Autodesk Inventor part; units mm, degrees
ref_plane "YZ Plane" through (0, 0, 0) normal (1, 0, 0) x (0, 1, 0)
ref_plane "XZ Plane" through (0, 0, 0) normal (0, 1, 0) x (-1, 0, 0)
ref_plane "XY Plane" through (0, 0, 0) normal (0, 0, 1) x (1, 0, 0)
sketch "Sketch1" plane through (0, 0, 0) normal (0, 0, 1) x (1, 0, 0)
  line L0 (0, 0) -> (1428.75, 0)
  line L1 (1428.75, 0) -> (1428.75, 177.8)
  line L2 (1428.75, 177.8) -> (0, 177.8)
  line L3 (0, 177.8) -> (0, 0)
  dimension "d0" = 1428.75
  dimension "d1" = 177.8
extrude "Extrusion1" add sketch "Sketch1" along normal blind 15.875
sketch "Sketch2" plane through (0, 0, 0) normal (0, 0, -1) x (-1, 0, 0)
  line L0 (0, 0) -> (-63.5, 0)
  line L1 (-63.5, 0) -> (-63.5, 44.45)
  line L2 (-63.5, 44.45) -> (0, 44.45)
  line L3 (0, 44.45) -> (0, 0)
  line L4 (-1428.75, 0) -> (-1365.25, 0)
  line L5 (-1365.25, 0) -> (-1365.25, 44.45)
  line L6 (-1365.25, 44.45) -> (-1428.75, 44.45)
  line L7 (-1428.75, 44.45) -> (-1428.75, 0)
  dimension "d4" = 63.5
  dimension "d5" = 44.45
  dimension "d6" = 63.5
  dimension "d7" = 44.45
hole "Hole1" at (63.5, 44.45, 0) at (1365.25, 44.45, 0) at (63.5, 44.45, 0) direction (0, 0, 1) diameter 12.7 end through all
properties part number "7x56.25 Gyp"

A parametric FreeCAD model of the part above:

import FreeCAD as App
import Part
import Sketcher

V = App.Vector
Q = App.Units.Quantity

doc = App.newDocument("Part")
body = doc.addObject("PartDesign::Body", "Body")

# Sketch on XY plane
sketch1 = body.newObject("Sketcher::SketchObject", "Sketch")
sketch1.AttachmentSupport = (doc.getObject("XY_Plane"), [""])
sketch1.MapMode = "FlatFace"
sketch1.addGeometry(Part.LineSegment(V(0, 178, 0), V(0, 0, 0)), False)
sketch1.addGeometry(Part.LineSegment(V(0, 0, 0), V(1429, 0, 0)), False)
sketch1.addGeometry(Part.LineSegment(V(1429, 0, 0), V(1429, 178, 0)), False)
sketch1.addGeometry(Part.LineSegment(V(1429, 178, 0), V(0, 178, 0)), False)
sketch1.addConstraint(Sketcher.Constraint("Coincident", 0, 2, 1, 1))
sketch1.addConstraint(Sketcher.Constraint("Coincident", 1, 2, 2, 1))
sketch1.addConstraint(Sketcher.Constraint("Coincident", 2, 2, 3, 1))
sketch1.addConstraint(Sketcher.Constraint("Coincident", 3, 2, 0, 1))
sketch1.addConstraint(Sketcher.Constraint("Vertical", 0))
sketch1.addConstraint(Sketcher.Constraint("Horizontal", 1))
sketch1.addConstraint(Sketcher.Constraint("Vertical", 2))
sketch1.addConstraint(Sketcher.Constraint("Horizontal", 3))
sketch1.addConstraint(Sketcher.Constraint("Coincident", 0, 2, -1, 1))
sketch1.addConstraint(Sketcher.Constraint("DistanceY", 0, 2, 0, 1, Q("7 in")))
sketch1.addConstraint(Sketcher.Constraint("DistanceX", 1, 1, 1, 2, Q("56.25 in")))
pad1 = body.newObject("PartDesign::Pad", "Pad")
pad1.Profile = sketch1
pad1.Length = Q("0.625 in")

# Sketch on XY plane
sketch2 = body.newObject("Sketcher::SketchObject", "Sketch001")
sketch2.AttachmentSupport = (doc.getObject("XY_Plane"), [""])
sketch2.MapMode = "FlatFace"
sketch2.addGeometry(Part.Circle(V(64, 44, 0), V(0, 0, 1), 6), False)
sketch2.addGeometry(Part.Circle(V(1365, 44, 0), V(0, 0, 1), 6), False)
sketch2.addGeometry(Part.Circle(V(64, 44, 0), V(0, 0, 1), 6), False)
sketch2.addConstraint(Sketcher.Constraint("Coincident", 2, 3, 0, 3))
sketch2.addConstraint(Sketcher.Constraint("Equal", 0, 1))
sketch2.addConstraint(Sketcher.Constraint("Equal", 1, 2))
sketch2.addConstraint(Sketcher.Constraint("Horizontal", 0, 3, 1, 3))
sketch2.addConstraint(Sketcher.Constraint("Diameter", 0, Q("0.5 in")))
sketch2.addConstraint(Sketcher.Constraint("DistanceX", -1, 1, 0, 3, Q("2.5 in")))
sketch2.addConstraint(Sketcher.Constraint("DistanceY", -1, 1, 0, 3, Q("1.75 in")))
sketch2.addConstraint(Sketcher.Constraint("DistanceX", -1, 1, 1, 3, Q("53.75 in")))
doc.recompute()
hole = body.newObject("PartDesign::Hole", "Hole")
hole.Profile = sketch2
hole.ThreadType = "None"
hole.Diameter = Q("0.5 in")
hole.DepthType = "ThroughAll"
hole.Reversed = True

doc.recompute()
